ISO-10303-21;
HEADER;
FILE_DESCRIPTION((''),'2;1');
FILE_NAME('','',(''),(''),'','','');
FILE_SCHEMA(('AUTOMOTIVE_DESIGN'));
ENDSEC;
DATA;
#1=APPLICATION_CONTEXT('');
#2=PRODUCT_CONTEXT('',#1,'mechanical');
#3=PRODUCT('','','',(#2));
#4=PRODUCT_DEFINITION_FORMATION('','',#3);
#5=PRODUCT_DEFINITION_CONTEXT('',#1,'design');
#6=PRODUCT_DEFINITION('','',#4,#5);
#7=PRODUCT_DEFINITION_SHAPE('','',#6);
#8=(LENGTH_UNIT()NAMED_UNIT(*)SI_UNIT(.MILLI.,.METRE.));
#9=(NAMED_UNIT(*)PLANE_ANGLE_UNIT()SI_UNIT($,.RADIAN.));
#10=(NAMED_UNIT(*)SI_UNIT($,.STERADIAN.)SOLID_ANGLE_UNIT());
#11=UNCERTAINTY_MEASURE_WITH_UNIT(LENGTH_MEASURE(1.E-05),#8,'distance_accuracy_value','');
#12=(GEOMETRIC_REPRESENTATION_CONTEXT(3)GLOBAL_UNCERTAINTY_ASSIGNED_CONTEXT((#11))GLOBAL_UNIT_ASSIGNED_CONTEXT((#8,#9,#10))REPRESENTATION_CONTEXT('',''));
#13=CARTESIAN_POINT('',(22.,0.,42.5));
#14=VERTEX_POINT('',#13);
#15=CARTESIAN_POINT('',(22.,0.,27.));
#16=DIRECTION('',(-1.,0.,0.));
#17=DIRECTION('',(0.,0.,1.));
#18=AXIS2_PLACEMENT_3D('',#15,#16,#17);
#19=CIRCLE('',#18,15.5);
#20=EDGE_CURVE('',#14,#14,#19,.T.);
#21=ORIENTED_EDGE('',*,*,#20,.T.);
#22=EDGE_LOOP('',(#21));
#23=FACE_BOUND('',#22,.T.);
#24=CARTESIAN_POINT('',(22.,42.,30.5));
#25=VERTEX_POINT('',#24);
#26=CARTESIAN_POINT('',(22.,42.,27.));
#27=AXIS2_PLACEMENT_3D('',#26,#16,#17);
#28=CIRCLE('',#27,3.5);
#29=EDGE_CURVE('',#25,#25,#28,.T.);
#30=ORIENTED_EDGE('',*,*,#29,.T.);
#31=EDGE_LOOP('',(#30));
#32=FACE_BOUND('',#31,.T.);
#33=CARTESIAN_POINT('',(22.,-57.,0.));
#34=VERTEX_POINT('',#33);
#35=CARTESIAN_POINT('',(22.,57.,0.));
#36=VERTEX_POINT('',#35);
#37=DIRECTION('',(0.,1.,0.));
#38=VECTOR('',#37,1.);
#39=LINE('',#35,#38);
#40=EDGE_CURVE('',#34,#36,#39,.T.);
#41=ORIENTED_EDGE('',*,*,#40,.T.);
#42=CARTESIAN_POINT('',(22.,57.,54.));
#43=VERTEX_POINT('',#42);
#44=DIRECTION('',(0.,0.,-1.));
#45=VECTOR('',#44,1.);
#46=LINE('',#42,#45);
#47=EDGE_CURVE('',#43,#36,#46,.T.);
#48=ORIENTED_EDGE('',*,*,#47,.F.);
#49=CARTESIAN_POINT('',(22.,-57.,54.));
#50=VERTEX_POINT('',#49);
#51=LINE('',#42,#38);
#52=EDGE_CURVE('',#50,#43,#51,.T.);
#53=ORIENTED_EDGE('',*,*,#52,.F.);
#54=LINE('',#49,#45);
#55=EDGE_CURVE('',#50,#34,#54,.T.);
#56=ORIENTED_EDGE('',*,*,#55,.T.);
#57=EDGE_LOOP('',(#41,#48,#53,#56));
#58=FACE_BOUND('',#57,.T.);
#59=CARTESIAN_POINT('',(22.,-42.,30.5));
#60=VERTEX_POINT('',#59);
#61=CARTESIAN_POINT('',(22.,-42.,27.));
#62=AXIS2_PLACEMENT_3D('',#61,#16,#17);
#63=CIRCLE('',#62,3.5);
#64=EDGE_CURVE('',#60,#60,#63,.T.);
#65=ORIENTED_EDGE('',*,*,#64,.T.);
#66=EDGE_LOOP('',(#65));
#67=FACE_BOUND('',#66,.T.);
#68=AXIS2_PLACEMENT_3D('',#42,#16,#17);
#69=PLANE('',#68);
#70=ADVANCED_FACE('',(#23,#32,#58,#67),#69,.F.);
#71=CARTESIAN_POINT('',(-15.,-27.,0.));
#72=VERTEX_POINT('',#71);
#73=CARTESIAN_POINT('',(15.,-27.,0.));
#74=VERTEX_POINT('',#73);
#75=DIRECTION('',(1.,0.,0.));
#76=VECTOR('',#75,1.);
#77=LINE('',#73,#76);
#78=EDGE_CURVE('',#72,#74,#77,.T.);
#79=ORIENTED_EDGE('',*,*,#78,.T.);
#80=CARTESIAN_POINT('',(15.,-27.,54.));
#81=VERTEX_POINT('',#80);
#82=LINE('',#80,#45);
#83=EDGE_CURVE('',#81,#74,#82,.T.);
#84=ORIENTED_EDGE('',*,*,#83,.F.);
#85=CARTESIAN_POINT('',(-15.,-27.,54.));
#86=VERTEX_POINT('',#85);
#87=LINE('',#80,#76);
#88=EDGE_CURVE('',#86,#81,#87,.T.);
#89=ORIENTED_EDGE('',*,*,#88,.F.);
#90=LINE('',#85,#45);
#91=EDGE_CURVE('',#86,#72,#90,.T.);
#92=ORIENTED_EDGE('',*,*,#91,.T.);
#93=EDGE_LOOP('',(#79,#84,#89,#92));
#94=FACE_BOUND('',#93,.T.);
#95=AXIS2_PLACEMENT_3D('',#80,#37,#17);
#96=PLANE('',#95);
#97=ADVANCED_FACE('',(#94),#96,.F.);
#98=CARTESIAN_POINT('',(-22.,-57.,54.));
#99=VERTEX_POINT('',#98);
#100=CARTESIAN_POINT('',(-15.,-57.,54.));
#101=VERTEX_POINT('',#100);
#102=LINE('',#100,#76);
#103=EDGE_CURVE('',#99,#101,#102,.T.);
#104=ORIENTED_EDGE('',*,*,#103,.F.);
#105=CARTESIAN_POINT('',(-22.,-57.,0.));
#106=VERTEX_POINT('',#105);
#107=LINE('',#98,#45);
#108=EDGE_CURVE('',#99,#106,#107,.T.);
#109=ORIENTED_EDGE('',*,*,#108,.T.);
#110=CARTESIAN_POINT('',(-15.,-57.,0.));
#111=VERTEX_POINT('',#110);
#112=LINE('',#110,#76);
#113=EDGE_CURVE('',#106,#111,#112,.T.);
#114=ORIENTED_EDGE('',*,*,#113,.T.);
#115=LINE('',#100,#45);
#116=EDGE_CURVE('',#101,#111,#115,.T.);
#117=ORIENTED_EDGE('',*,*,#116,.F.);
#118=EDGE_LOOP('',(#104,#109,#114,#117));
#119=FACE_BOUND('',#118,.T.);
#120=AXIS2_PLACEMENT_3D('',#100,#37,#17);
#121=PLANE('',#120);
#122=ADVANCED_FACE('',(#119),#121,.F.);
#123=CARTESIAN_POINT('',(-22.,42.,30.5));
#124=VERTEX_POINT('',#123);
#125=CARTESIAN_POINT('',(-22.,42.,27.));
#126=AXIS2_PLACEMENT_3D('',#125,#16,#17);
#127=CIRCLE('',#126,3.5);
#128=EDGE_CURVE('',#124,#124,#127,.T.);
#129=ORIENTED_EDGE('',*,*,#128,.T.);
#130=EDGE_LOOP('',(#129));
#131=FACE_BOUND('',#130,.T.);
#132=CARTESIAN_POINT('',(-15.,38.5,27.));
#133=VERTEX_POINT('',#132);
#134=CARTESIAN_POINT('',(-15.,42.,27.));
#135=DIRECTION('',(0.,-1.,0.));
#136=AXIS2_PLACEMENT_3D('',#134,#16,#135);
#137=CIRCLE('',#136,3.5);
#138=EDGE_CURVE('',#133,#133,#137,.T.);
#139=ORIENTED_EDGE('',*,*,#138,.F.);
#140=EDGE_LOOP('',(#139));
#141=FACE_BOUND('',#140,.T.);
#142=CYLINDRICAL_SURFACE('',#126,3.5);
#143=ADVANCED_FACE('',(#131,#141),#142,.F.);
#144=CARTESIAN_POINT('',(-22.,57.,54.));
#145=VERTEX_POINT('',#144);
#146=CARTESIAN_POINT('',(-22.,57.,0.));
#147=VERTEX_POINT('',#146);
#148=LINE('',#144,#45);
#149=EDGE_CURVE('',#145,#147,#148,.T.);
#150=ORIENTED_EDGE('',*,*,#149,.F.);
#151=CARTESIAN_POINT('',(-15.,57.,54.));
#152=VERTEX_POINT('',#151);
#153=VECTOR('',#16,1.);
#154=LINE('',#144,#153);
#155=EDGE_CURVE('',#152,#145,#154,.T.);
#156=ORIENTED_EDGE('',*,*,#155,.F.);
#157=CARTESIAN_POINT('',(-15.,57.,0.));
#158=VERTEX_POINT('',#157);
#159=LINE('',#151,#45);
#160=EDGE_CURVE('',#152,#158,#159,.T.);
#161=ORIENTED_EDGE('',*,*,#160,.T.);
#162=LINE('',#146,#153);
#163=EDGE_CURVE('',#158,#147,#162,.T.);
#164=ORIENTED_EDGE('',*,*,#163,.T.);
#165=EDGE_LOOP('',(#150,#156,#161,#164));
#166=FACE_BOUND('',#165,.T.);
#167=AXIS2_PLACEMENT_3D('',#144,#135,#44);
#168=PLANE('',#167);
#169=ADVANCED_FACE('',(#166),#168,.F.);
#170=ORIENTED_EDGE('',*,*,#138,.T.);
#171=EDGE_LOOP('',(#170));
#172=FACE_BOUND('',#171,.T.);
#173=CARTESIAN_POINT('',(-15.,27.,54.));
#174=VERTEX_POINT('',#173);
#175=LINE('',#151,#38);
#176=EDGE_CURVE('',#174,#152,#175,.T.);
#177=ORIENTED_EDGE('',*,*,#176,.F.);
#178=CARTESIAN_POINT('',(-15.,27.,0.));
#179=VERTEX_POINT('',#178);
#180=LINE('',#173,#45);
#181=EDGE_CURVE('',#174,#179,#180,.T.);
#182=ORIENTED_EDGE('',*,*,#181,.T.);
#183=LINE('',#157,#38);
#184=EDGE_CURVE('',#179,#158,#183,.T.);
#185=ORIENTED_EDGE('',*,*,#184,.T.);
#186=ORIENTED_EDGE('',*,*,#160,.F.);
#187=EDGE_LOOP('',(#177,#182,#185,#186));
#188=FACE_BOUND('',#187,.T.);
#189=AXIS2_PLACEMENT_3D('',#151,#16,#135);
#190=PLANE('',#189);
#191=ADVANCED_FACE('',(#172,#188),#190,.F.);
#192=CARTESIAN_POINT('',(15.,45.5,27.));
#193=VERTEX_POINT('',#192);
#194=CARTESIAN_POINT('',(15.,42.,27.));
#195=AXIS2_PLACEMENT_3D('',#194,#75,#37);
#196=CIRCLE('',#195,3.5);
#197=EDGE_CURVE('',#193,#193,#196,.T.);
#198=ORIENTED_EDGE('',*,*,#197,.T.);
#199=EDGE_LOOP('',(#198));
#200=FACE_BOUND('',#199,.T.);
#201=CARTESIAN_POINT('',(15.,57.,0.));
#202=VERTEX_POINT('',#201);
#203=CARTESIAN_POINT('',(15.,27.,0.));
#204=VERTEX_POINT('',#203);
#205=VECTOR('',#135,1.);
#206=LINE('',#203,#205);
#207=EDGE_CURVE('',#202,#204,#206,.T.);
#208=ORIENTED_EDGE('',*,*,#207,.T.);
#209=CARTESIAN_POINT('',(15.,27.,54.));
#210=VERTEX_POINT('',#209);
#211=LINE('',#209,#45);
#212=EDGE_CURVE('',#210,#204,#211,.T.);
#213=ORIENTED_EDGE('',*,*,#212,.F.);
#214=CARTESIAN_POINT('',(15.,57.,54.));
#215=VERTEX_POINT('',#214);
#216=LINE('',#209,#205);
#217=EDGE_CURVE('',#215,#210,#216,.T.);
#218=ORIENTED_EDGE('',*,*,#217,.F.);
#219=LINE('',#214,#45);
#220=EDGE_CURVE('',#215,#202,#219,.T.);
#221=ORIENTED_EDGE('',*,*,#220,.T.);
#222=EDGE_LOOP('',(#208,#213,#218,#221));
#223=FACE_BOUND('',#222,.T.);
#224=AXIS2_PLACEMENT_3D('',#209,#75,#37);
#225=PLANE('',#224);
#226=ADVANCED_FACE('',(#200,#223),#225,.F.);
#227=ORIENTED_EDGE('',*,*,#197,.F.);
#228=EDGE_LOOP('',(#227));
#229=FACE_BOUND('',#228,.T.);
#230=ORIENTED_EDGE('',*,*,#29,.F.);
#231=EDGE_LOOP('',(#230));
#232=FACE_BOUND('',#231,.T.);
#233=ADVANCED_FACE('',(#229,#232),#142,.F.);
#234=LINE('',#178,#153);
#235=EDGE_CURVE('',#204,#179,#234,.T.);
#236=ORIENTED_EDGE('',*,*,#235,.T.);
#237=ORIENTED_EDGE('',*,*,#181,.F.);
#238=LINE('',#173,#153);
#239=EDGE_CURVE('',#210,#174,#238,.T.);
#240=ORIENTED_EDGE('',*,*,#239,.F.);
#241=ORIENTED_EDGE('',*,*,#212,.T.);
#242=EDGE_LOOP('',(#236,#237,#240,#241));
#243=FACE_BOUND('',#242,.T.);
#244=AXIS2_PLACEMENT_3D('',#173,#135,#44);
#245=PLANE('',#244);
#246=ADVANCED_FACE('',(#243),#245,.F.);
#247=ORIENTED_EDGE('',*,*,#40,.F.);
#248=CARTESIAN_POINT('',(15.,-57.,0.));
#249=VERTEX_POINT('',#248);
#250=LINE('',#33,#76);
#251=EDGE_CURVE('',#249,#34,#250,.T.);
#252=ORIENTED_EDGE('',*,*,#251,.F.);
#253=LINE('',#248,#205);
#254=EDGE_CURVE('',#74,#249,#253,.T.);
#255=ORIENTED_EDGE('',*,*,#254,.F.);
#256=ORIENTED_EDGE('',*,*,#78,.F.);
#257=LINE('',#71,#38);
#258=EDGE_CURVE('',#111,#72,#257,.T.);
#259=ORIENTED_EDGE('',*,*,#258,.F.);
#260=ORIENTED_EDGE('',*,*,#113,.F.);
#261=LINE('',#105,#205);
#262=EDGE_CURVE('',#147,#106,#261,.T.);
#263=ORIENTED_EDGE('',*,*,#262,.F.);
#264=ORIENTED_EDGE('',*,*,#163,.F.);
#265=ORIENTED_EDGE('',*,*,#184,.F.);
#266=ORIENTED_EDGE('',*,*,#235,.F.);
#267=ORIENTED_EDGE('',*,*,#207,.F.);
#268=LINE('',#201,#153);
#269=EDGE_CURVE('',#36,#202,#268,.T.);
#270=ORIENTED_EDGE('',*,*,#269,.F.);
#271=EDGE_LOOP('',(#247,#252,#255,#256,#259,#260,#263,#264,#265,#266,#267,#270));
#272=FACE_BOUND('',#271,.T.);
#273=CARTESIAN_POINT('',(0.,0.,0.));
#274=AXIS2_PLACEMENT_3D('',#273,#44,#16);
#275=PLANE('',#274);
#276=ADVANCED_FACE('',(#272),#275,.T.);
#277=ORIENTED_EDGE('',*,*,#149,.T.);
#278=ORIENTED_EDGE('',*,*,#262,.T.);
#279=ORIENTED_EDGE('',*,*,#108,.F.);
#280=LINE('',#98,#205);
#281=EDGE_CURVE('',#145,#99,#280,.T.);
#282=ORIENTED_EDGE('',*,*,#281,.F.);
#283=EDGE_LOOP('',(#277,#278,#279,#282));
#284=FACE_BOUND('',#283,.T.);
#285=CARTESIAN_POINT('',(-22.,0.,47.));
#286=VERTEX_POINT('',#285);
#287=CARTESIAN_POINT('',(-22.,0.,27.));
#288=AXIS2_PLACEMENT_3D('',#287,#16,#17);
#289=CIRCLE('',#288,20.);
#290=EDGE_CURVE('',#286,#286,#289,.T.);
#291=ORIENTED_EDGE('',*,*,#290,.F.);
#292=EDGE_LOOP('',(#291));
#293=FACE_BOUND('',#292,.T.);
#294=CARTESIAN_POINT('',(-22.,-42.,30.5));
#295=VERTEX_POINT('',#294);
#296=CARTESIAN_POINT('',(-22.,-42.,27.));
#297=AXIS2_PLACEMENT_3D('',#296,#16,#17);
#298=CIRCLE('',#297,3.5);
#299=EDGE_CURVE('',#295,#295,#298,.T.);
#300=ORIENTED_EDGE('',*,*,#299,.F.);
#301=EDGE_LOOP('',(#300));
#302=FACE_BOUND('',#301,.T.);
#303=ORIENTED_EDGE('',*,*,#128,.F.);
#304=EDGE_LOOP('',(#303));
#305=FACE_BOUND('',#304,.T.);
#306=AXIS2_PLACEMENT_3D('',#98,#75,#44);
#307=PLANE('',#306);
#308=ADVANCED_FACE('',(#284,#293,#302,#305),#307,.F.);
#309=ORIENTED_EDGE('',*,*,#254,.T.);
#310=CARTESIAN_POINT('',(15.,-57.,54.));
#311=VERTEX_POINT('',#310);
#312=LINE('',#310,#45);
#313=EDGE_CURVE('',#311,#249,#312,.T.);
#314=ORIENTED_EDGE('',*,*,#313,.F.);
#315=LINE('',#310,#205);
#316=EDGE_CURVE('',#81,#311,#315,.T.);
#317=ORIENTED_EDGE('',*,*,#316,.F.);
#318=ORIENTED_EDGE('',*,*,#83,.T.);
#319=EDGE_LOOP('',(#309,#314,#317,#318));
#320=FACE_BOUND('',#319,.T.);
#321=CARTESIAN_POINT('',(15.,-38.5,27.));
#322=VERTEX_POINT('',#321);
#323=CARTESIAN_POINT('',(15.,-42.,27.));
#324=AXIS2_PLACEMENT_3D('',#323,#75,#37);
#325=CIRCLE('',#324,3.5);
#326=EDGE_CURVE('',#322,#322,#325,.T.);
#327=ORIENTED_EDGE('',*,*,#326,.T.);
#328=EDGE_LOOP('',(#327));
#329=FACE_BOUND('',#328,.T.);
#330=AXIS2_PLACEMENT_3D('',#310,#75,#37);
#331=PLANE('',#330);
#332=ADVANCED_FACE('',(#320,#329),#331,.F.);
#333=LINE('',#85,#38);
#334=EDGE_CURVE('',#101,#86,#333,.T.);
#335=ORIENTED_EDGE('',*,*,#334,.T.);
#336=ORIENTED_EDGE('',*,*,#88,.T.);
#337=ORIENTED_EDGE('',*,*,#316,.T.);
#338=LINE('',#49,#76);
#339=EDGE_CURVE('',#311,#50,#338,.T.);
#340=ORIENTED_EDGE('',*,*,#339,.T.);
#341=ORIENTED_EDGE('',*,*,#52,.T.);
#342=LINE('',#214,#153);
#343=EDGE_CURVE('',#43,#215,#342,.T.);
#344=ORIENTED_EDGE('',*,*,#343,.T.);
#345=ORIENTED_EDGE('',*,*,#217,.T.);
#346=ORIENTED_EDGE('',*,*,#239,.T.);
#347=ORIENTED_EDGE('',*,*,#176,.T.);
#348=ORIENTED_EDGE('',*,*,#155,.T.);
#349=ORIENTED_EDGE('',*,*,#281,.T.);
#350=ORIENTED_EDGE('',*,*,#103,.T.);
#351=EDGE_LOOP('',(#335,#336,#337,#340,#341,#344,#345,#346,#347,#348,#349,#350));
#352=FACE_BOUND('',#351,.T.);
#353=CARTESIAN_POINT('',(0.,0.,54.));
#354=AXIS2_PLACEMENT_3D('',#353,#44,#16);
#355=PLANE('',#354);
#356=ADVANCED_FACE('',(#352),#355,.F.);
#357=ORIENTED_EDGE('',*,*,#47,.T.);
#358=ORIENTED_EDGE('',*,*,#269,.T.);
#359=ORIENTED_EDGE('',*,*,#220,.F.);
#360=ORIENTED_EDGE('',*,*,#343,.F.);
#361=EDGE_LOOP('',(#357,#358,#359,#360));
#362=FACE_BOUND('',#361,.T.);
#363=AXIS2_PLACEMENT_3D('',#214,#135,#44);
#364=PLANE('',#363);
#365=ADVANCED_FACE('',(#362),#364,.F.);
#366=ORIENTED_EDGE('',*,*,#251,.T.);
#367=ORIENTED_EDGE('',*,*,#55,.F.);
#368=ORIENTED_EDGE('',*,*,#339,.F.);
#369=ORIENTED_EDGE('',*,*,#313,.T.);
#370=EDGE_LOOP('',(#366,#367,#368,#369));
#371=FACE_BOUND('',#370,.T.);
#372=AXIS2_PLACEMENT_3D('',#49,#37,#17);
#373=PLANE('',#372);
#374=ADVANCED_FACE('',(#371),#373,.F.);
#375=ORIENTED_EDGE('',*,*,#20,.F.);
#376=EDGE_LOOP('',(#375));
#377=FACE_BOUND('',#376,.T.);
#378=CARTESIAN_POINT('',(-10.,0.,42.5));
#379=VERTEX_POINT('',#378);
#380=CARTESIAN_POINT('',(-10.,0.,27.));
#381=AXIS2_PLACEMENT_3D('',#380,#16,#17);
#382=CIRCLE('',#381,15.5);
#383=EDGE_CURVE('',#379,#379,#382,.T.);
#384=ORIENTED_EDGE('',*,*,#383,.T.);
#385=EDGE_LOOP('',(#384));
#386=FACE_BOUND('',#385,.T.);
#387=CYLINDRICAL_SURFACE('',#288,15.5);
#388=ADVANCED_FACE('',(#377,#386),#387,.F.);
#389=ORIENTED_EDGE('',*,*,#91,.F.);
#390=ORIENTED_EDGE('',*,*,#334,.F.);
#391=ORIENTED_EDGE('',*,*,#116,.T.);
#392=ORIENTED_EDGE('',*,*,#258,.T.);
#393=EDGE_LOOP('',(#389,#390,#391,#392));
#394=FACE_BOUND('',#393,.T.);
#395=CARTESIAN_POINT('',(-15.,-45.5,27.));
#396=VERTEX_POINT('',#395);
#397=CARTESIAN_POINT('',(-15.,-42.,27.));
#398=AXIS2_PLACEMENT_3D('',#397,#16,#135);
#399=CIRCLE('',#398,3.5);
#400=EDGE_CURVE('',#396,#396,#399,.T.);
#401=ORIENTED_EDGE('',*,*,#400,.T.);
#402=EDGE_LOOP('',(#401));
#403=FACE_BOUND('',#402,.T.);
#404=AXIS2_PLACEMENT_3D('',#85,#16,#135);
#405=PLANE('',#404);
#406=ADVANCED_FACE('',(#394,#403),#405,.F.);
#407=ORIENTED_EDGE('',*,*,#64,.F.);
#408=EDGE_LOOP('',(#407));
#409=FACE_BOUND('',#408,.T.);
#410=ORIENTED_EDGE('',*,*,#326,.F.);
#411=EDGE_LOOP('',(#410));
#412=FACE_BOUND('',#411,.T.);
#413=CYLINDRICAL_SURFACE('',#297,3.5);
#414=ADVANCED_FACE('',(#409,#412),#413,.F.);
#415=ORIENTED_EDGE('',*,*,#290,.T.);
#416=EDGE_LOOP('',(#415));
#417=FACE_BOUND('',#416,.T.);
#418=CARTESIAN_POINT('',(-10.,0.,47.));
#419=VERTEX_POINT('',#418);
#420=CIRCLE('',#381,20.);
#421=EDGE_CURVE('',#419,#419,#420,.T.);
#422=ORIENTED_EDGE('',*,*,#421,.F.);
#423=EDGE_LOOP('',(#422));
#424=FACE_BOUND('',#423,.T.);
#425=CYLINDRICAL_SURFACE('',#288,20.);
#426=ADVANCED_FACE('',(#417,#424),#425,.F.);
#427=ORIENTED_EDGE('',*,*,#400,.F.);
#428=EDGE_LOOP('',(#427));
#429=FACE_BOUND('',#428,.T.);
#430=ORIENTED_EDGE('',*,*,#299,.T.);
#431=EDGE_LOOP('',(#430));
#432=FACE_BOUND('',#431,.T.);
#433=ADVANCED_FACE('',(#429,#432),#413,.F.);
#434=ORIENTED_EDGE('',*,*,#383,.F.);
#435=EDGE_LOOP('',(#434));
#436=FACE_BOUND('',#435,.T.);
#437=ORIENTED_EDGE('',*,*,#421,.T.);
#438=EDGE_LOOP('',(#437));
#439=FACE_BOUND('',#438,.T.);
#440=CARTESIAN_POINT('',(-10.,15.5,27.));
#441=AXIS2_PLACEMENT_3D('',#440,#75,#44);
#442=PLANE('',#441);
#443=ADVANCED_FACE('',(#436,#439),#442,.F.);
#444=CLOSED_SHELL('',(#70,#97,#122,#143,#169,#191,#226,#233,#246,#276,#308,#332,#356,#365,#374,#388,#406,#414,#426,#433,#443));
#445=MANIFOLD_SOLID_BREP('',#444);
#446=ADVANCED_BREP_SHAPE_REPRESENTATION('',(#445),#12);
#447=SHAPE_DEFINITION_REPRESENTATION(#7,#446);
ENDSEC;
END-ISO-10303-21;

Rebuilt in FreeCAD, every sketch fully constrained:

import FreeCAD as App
import Part
import Sketcher

V = App.Vector

doc = App.newDocument("Part")
body = doc.addObject("PartDesign::Body", "Body")

# Sketch on XY plane
sketch1 = body.newObject("Sketcher::SketchObject", "Sketch")
sketch1.AttachmentSupport = (doc.getObject("XY_Plane"), [""])
sketch1.MapMode = "FlatFace"
sketch1.addGeometry(Part.LineSegment(V(-15, 57, 0), V(-22, 57, 0)), False)
sketch1.addGeometry(Part.LineSegment(V(-22, 57, 0), V(-22, -57, 0)), False)
sketch1.addGeometry(Part.LineSegment(V(-22, -57, 0), V(-15, -57, 0)), False)
sketch1.addGeometry(Part.LineSegment(V(-15, -57, 0), V(-15, -27, 0)), False)
sketch1.addGeometry(Part.LineSegment(V(-15, -27, 0), V(15, -27, 0)), False)
sketch1.addGeometry(Part.LineSegment(V(15, -27, 0), V(15, -57, 0)), False)
sketch1.addGeometry(Part.LineSegment(V(15, -57, 0), V(22, -57, 0)), False)
sketch1.addGeometry(Part.LineSegment(V(22, -57, 0), V(22, 57, 0)), False)
sketch1.addGeometry(Part.LineSegment(V(22, 57, 0), V(15, 57, 0)), False)
sketch1.addGeometry(Part.LineSegment(V(15, 57, 0), V(15, 27, 0)), False)
sketch1.addGeometry(Part.LineSegment(V(15, 27, 0), V(-15, 27, 0)), False)
sketch1.addGeometry(Part.LineSegment(V(-15, 27, 0), V(-15, 57, 0)), False)
sketch1.addConstraint(Sketcher.Constraint("Coincident", 0, 2, 1, 1))
sketch1.addConstraint(Sketcher.Constraint("Coincident", 1, 2, 2, 1))
sketch1.addConstraint(Sketcher.Constraint("Coincident", 2, 2, 3, 1))
sketch1.addConstraint(Sketcher.Constraint("Coincident", 3, 2, 4, 1))
sketch1.addConstraint(Sketcher.Constraint("Coincident", 4, 2, 5, 1))
sketch1.addConstraint(Sketcher.Constraint("Coincident", 5, 2, 6, 1))
sketch1.addConstraint(Sketcher.Constraint("Coincident", 6, 2, 7, 1))
sketch1.addConstraint(Sketcher.Constraint("Coincident", 7, 2, 8, 1))
sketch1.addConstraint(Sketcher.Constraint("Coincident", 8, 2, 9, 1))
sketch1.addConstraint(Sketcher.Constraint("Coincident", 9, 2, 10, 1))
sketch1.addConstraint(Sketcher.Constraint("Coincident", 10, 2, 11, 1))
sketch1.addConstraint(Sketcher.Constraint("Coincident", 11, 2, 0, 1))
sketch1.addConstraint(Sketcher.Constraint("Horizontal", 0))
sketch1.addConstraint(Sketcher.Constraint("Vertical", 1))
sketch1.addConstraint(Sketcher.Constraint("Horizontal", 2))
sketch1.addConstraint(Sketcher.Constraint("Vertical", 3))
sketch1.addConstraint(Sketcher.Constraint("Horizontal", 4))
sketch1.addConstraint(Sketcher.Constraint("Vertical", 5))
sketch1.addConstraint(Sketcher.Constraint("Horizontal", 6))
sketch1.addConstraint(Sketcher.Constraint("Vertical", 7))
sketch1.addConstraint(Sketcher.Constraint("Horizontal", 8))
sketch1.addConstraint(Sketcher.Constraint("Vertical", 9))
sketch1.addConstraint(Sketcher.Constraint("Horizontal", 10))
sketch1.addConstraint(Sketcher.Constraint("Vertical", 11))
sketch1.addConstraint(Sketcher.Constraint("Symmetric", 0, 2, 6, 2, -1, 1))
sketch1.addConstraint(Sketcher.Constraint("Symmetric", 2, 2, 8, 2, -1, 1))
sketch1.addConstraint(Sketcher.Constraint("Symmetric", 4, 2, 10, 2, -1, 1))
sketch1.addConstraint(Sketcher.Constraint("Symmetric", 2, 2, 5, 2, -2))
sketch1.addConstraint(Sketcher.Constraint("Equal", 10, 3))
sketch1.addConstraint(Sketcher.Constraint("DistanceX", 0, 2, 0, 1, 7.0))
sketch1.addConstraint(Sketcher.Constraint("DistanceX", 4, 1, 4, 2, 30.0))
sketch1.addConstraint(Sketcher.Constraint("DistanceY", 1, 2, 1, 1, 114.0))
pad1 = body.newObject("PartDesign::Pad", "Pad")
pad1.Profile = sketch1
pad1.Length = 54

# Sketch on YZ plane
sketch2 = body.newObject("Sketcher::SketchObject", "Sketch001")
sketch2.AttachmentSupport = (doc.getObject("YZ_Plane"), [""])
sketch2.MapMode = "FlatFace"
sketch2.AttachmentOffset = App.Placement(V(0, 0, -22), App.Rotation())
sketch2.addGeometry(Part.Circle(V(42, 27, 0), V(0, 0, 1), 3.5), False)
sketch2.addGeometry(Part.Circle(V(-42, 27, 0), V(0, 0, 1), 3.5), False)
sketch2.addConstraint(Sketcher.Constraint("Equal", 0, 1))
sketch2.addConstraint(Sketcher.Constraint("Symmetric", 0, 3, 1, 3, -2))
sketch2.addConstraint(Sketcher.Constraint("Diameter", 0, 7.0))
sketch2.addConstraint(Sketcher.Constraint("DistanceX", -1, 1, 0, 3, 42.0))
sketch2.addConstraint(Sketcher.Constraint("DistanceY", -1, 1, 0, 3, 27.0))
doc.recompute()
hole = body.newObject("PartDesign::Hole", "Hole")
hole.Profile = sketch2
hole.ThreadType = "None"
hole.Diameter = 7
hole.DepthType = "ThroughAll"
hole.Reversed = True

# Sketch on YZ plane
sketch3 = body.newObject("Sketcher::SketchObject", "Sketch002")
sketch3.AttachmentSupport = (doc.getObject("YZ_Plane"), [""])
sketch3.MapMode = "FlatFace"
sketch3.AttachmentOffset = App.Placement(V(0, 0, -22), App.Rotation())
sketch3.addGeometry(Part.Circle(V(0, 27, 0), V(0, 0, 1), 15), False)
sketch3.addConstraint(Sketcher.Constraint("PointOnObject", 0, 3, -2))
sketch3.addConstraint(Sketcher.Constraint("Diameter", 0, 31.0))
sketch3.addConstraint(Sketcher.Constraint("DistanceY", -1, 1, 0, 3, 27.0))
doc.recompute()
hole2 = body.newObject("PartDesign::Hole", "Hole001")
hole2.Profile = sketch3
hole2.ThreadType = "None"
hole2.Diameter = 31
hole2.DepthType = "ThroughAll"
hole2.HoleCutType = "Counterbore"
hole2.HoleCutDiameter = 40
hole2.HoleCutDepth = 12
hole2.Reversed = True

doc.recompute()
